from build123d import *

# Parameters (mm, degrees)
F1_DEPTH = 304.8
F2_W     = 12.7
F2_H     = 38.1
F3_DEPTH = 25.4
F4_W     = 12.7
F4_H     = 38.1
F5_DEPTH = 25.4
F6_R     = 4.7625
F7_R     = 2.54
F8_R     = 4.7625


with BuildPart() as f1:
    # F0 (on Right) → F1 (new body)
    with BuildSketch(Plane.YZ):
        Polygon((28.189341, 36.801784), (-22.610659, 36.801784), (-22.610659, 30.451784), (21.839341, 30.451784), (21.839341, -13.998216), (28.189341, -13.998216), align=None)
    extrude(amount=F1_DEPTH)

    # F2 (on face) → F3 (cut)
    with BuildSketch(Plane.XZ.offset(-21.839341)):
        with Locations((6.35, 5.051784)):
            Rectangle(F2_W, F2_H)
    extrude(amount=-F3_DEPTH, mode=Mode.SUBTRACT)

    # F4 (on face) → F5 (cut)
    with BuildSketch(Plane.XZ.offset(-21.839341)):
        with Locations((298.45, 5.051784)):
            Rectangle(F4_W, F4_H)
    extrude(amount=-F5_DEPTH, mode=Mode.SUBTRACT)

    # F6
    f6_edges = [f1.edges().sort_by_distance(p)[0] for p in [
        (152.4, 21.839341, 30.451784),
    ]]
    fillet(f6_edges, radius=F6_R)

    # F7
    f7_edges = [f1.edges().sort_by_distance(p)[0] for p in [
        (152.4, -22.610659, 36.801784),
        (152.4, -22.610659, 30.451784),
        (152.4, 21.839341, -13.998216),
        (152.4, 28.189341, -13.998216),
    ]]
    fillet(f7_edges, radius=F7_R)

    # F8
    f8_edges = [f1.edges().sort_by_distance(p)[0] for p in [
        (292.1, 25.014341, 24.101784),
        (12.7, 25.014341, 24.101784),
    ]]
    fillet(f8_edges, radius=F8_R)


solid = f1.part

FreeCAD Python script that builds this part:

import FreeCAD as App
import Part
import Sketcher
Q = App.Units.Quantity


def edges_at(feature, points):
    """Names of the edges that pass closest to the given points."""
    edges = feature.Shape.Edges
    near = lambda p: min(range(len(edges)), key=lambda i: edges[i].distToShape(Part.Vertex(*p))[0])
    return sorted({f"Edge{near(p) + 1}" for p in points})


def add_polygon(sketch, points):
    """Adds a closed chain of lines whose ends are joined by coincident constraints."""
    first, n = sketch.GeometryCount, len(points)
    for a, b in zip(points, points[1:] + points[:1]):
        sketch.addGeometry(Part.LineSegment(App.Vector(*a, 0), App.Vector(*b, 0)), False)
    for i in range(n):
        sketch.addConstraint(Sketcher.Constraint("Coincident", first + i, 2, first + (i + 1) % n, 1))

doc = App.newDocument("Part")
body = doc.addObject("PartDesign::Body", "Body")

# Sketch on YZ plane
sketch1 = body.newObject("Sketcher::SketchObject", "Sketch")
sketch1.AttachmentSupport = (doc.getObject("YZ_Plane"), [""])
sketch1.MapMode = "FlatFace"
add_polygon(sketch1, [(28, 37), (-23, 37), (-23, 30), (22, 30), (22, -14), (28, -14)])  # lines 0-5
sketch1.addConstraint(Sketcher.Constraint("Horizontal", 0))
sketch1.addConstraint(Sketcher.Constraint("Vertical", 1))
sketch1.addConstraint(Sketcher.Constraint("Horizontal", 2))
sketch1.addConstraint(Sketcher.Constraint("Vertical", 3))
sketch1.addConstraint(Sketcher.Constraint("Horizontal", 4))
sketch1.addConstraint(Sketcher.Constraint("Vertical", 5))
sketch1.addConstraint(Sketcher.Constraint("Equal", 4, 1))
sketch1.addConstraint(Sketcher.Constraint("Equal", 2, 3))
sketch1.addConstraint(Sketcher.Constraint("DistanceX", 0, 2, 0, 1, Q("2 in")))
sketch1.addConstraint(Sketcher.Constraint("DistanceX", 2, 1, 2, 2, Q("1.75 in")))
sketch1.addConstraint(Sketcher.Constraint("DistanceX", 0, 2, -1, 1, Q("22.610659 mm")))
sketch1.addConstraint(Sketcher.Constraint("DistanceY", -1, 1, 0, 2, Q("36.801784 mm")))
pad1 = body.newObject("PartDesign::Pad", "Pad")
pad1.Profile = sketch1
pad1.Length = Q("12 in")

# Sketch on XZ plane
sketch2 = body.newObject("Sketcher::SketchObject", "Sketch001")
sketch2.AttachmentSupport = (doc.getObject("XZ_Plane"), [""])
sketch2.MapMode = "FlatFace"
sketch2.AttachmentOffset = App.Placement(App.Vector(0, 0, -21.839341), App.Rotation())
add_polygon(sketch2, [(0, 24), (0, -14), (13, -14), (13, 24)])  # lines 0-3
sketch2.addConstraint(Sketcher.Constraint("Vertical", 0))
sketch2.addConstraint(Sketcher.Constraint("Horizontal", 1))
sketch2.addConstraint(Sketcher.Constraint("Vertical", 2))
sketch2.addConstraint(Sketcher.Constraint("Horizontal", 3))
sketch2.addConstraint(Sketcher.Constraint("PointOnObject", 0, 2, -2))
sketch2.addConstraint(Sketcher.Constraint("DistanceX", 1, 1, 1, 2, Q("0.5 in")))
sketch2.addConstraint(Sketcher.Constraint("DistanceY", 0, 2, 0, 1, Q("1.5 in")))
sketch2.addConstraint(Sketcher.Constraint("DistanceY", 0, 2, -1, 1, Q("13.998216 mm")))
pocket1 = body.newObject("PartDesign::Pocket", "Pocket")
pocket1.Profile = sketch2
pocket1.Length = Q("1 in")

# Sketch on XZ plane
sketch3 = body.newObject("Sketcher::SketchObject", "Sketch002")
sketch3.AttachmentSupport = (doc.getObject("XZ_Plane"), [""])
sketch3.MapMode = "FlatFace"
sketch3.AttachmentOffset = App.Placement(App.Vector(0, 0, -21.839341), App.Rotation())
add_polygon(sketch3, [(292, 24), (292, -14), (305, -14), (305, 24)])  # lines 0-3
sketch3.addConstraint(Sketcher.Constraint("Vertical", 0))
sketch3.addConstraint(Sketcher.Constraint("Horizontal", 1))
sketch3.addConstraint(Sketcher.Constraint("Vertical", 2))
sketch3.addConstraint(Sketcher.Constraint("Horizontal", 3))
sketch3.addConstraint(Sketcher.Constraint("DistanceX", 1, 1, 1, 2, Q("0.5 in")))
sketch3.addConstraint(Sketcher.Constraint("DistanceY", 0, 2, 0, 1, Q("1.5 in")))
sketch3.addConstraint(Sketcher.Constraint("DistanceX", -1, 1, 1, 2, Q("12 in")))
sketch3.addConstraint(Sketcher.Constraint("DistanceY", 0, 2, -1, 1, Q("13.998216 mm")))
pocket2 = body.newObject("PartDesign::Pocket", "Pocket001")
pocket2.Profile = sketch3
pocket2.Length = Q("1 in")
doc.recompute()

fillet = body.newObject("PartDesign::Fillet", "Fillet")
fillet.Base = (pocket2, edges_at(pocket2, [(152.4, 21.839, 30.452)]))
fillet.Radius = Q("0.1875 in")
doc.recompute()

fillet2 = body.newObject("PartDesign::Fillet", "Fillet001")
fillet2.Base = (fillet, edges_at(fillet, [
    (152.4, -22.611, 36.802),
    (152.4, -22.611, 30.452),
    (152.4, 21.839, -13.998),
    (152.4, 28.189, -13.998),
]))
fillet2.Radius = Q("0.1 in")
doc.recompute()

fillet3 = body.newObject("PartDesign::Fillet", "Fillet002")
fillet3.Base = (fillet2, edges_at(fillet2, [(292.1, 25.014, 24.102), (12.7, 25.014, 24.102)]))
fillet3.Radius = Q("0.1875 in")

doc.recompute()
